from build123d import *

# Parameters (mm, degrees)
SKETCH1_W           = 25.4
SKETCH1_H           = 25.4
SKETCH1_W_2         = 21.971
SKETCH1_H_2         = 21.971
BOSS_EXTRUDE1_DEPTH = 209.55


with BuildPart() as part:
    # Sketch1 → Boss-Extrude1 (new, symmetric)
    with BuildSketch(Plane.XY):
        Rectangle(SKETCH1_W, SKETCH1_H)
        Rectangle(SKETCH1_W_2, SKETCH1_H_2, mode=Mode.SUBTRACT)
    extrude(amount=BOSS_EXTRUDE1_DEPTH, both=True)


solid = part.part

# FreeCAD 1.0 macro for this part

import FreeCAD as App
import Part
import Sketcher
Q = App.Units.Quantity


def add_polygon(sketch, points):
    """Adds a closed chain of lines whose ends are joined by coincident constraints."""
    first, n = sketch.GeometryCount, len(points)
    for a, b in zip(points, points[1:] + points[:1]):
        sketch.addGeometry(Part.LineSegment(App.Vector(*a, 0), App.Vector(*b, 0)), False)
    for i in range(n):
        sketch.addConstraint(Sketcher.Constraint("Coincident", first + i, 2, first + (i + 1) % n, 1))

doc = App.newDocument("Part")
body = doc.addObject("PartDesign::Body", "Body")

# Sketch on XY plane
sketch1 = body.newObject("Sketcher::SketchObject", "Sketch")
sketch1.AttachmentSupport = (doc.getObject("XY_Plane"), [""])
sketch1.MapMode = "FlatFace"
add_polygon(sketch1, [(-13, 13), (-13, -13), (13, -13), (13, 13)])  # lines 0-3
add_polygon(sketch1, [(11, -11), (-11, -11), (-11, 11), (11, 11)])  # lines 4-7
sketch1.addConstraint([
    Sketcher.Constraint("Vertical", 0),
    Sketcher.Constraint("Horizontal", 1),
    Sketcher.Constraint("Vertical", 2),
    Sketcher.Constraint("Horizontal", 3),
    Sketcher.Constraint("Horizontal", 4),
    Sketcher.Constraint("Vertical", 5),
    Sketcher.Constraint("Horizontal", 6),
    Sketcher.Constraint("Vertical", 7),
    Sketcher.Constraint("Symmetric", 0, 2, 2, 2, -1, 1),
    Sketcher.Constraint("Symmetric", 4, 2, 6, 2, -1, 1),
    Sketcher.Constraint("Equal", 3, 0),
    Sketcher.Constraint("Equal", 6, 5),
    Sketcher.Constraint("DistanceX", 1, 1, 1, 2, Q("1 in")),
    Sketcher.Constraint("DistanceX", 4, 2, 4, 1, Q("0.865 in")),
])
pad1 = body.newObject("PartDesign::Pad", "Pad")
pad1.Profile = sketch1
pad1.Length = Q("16.5 in")
pad1.Midplane = True

doc.recompute()
